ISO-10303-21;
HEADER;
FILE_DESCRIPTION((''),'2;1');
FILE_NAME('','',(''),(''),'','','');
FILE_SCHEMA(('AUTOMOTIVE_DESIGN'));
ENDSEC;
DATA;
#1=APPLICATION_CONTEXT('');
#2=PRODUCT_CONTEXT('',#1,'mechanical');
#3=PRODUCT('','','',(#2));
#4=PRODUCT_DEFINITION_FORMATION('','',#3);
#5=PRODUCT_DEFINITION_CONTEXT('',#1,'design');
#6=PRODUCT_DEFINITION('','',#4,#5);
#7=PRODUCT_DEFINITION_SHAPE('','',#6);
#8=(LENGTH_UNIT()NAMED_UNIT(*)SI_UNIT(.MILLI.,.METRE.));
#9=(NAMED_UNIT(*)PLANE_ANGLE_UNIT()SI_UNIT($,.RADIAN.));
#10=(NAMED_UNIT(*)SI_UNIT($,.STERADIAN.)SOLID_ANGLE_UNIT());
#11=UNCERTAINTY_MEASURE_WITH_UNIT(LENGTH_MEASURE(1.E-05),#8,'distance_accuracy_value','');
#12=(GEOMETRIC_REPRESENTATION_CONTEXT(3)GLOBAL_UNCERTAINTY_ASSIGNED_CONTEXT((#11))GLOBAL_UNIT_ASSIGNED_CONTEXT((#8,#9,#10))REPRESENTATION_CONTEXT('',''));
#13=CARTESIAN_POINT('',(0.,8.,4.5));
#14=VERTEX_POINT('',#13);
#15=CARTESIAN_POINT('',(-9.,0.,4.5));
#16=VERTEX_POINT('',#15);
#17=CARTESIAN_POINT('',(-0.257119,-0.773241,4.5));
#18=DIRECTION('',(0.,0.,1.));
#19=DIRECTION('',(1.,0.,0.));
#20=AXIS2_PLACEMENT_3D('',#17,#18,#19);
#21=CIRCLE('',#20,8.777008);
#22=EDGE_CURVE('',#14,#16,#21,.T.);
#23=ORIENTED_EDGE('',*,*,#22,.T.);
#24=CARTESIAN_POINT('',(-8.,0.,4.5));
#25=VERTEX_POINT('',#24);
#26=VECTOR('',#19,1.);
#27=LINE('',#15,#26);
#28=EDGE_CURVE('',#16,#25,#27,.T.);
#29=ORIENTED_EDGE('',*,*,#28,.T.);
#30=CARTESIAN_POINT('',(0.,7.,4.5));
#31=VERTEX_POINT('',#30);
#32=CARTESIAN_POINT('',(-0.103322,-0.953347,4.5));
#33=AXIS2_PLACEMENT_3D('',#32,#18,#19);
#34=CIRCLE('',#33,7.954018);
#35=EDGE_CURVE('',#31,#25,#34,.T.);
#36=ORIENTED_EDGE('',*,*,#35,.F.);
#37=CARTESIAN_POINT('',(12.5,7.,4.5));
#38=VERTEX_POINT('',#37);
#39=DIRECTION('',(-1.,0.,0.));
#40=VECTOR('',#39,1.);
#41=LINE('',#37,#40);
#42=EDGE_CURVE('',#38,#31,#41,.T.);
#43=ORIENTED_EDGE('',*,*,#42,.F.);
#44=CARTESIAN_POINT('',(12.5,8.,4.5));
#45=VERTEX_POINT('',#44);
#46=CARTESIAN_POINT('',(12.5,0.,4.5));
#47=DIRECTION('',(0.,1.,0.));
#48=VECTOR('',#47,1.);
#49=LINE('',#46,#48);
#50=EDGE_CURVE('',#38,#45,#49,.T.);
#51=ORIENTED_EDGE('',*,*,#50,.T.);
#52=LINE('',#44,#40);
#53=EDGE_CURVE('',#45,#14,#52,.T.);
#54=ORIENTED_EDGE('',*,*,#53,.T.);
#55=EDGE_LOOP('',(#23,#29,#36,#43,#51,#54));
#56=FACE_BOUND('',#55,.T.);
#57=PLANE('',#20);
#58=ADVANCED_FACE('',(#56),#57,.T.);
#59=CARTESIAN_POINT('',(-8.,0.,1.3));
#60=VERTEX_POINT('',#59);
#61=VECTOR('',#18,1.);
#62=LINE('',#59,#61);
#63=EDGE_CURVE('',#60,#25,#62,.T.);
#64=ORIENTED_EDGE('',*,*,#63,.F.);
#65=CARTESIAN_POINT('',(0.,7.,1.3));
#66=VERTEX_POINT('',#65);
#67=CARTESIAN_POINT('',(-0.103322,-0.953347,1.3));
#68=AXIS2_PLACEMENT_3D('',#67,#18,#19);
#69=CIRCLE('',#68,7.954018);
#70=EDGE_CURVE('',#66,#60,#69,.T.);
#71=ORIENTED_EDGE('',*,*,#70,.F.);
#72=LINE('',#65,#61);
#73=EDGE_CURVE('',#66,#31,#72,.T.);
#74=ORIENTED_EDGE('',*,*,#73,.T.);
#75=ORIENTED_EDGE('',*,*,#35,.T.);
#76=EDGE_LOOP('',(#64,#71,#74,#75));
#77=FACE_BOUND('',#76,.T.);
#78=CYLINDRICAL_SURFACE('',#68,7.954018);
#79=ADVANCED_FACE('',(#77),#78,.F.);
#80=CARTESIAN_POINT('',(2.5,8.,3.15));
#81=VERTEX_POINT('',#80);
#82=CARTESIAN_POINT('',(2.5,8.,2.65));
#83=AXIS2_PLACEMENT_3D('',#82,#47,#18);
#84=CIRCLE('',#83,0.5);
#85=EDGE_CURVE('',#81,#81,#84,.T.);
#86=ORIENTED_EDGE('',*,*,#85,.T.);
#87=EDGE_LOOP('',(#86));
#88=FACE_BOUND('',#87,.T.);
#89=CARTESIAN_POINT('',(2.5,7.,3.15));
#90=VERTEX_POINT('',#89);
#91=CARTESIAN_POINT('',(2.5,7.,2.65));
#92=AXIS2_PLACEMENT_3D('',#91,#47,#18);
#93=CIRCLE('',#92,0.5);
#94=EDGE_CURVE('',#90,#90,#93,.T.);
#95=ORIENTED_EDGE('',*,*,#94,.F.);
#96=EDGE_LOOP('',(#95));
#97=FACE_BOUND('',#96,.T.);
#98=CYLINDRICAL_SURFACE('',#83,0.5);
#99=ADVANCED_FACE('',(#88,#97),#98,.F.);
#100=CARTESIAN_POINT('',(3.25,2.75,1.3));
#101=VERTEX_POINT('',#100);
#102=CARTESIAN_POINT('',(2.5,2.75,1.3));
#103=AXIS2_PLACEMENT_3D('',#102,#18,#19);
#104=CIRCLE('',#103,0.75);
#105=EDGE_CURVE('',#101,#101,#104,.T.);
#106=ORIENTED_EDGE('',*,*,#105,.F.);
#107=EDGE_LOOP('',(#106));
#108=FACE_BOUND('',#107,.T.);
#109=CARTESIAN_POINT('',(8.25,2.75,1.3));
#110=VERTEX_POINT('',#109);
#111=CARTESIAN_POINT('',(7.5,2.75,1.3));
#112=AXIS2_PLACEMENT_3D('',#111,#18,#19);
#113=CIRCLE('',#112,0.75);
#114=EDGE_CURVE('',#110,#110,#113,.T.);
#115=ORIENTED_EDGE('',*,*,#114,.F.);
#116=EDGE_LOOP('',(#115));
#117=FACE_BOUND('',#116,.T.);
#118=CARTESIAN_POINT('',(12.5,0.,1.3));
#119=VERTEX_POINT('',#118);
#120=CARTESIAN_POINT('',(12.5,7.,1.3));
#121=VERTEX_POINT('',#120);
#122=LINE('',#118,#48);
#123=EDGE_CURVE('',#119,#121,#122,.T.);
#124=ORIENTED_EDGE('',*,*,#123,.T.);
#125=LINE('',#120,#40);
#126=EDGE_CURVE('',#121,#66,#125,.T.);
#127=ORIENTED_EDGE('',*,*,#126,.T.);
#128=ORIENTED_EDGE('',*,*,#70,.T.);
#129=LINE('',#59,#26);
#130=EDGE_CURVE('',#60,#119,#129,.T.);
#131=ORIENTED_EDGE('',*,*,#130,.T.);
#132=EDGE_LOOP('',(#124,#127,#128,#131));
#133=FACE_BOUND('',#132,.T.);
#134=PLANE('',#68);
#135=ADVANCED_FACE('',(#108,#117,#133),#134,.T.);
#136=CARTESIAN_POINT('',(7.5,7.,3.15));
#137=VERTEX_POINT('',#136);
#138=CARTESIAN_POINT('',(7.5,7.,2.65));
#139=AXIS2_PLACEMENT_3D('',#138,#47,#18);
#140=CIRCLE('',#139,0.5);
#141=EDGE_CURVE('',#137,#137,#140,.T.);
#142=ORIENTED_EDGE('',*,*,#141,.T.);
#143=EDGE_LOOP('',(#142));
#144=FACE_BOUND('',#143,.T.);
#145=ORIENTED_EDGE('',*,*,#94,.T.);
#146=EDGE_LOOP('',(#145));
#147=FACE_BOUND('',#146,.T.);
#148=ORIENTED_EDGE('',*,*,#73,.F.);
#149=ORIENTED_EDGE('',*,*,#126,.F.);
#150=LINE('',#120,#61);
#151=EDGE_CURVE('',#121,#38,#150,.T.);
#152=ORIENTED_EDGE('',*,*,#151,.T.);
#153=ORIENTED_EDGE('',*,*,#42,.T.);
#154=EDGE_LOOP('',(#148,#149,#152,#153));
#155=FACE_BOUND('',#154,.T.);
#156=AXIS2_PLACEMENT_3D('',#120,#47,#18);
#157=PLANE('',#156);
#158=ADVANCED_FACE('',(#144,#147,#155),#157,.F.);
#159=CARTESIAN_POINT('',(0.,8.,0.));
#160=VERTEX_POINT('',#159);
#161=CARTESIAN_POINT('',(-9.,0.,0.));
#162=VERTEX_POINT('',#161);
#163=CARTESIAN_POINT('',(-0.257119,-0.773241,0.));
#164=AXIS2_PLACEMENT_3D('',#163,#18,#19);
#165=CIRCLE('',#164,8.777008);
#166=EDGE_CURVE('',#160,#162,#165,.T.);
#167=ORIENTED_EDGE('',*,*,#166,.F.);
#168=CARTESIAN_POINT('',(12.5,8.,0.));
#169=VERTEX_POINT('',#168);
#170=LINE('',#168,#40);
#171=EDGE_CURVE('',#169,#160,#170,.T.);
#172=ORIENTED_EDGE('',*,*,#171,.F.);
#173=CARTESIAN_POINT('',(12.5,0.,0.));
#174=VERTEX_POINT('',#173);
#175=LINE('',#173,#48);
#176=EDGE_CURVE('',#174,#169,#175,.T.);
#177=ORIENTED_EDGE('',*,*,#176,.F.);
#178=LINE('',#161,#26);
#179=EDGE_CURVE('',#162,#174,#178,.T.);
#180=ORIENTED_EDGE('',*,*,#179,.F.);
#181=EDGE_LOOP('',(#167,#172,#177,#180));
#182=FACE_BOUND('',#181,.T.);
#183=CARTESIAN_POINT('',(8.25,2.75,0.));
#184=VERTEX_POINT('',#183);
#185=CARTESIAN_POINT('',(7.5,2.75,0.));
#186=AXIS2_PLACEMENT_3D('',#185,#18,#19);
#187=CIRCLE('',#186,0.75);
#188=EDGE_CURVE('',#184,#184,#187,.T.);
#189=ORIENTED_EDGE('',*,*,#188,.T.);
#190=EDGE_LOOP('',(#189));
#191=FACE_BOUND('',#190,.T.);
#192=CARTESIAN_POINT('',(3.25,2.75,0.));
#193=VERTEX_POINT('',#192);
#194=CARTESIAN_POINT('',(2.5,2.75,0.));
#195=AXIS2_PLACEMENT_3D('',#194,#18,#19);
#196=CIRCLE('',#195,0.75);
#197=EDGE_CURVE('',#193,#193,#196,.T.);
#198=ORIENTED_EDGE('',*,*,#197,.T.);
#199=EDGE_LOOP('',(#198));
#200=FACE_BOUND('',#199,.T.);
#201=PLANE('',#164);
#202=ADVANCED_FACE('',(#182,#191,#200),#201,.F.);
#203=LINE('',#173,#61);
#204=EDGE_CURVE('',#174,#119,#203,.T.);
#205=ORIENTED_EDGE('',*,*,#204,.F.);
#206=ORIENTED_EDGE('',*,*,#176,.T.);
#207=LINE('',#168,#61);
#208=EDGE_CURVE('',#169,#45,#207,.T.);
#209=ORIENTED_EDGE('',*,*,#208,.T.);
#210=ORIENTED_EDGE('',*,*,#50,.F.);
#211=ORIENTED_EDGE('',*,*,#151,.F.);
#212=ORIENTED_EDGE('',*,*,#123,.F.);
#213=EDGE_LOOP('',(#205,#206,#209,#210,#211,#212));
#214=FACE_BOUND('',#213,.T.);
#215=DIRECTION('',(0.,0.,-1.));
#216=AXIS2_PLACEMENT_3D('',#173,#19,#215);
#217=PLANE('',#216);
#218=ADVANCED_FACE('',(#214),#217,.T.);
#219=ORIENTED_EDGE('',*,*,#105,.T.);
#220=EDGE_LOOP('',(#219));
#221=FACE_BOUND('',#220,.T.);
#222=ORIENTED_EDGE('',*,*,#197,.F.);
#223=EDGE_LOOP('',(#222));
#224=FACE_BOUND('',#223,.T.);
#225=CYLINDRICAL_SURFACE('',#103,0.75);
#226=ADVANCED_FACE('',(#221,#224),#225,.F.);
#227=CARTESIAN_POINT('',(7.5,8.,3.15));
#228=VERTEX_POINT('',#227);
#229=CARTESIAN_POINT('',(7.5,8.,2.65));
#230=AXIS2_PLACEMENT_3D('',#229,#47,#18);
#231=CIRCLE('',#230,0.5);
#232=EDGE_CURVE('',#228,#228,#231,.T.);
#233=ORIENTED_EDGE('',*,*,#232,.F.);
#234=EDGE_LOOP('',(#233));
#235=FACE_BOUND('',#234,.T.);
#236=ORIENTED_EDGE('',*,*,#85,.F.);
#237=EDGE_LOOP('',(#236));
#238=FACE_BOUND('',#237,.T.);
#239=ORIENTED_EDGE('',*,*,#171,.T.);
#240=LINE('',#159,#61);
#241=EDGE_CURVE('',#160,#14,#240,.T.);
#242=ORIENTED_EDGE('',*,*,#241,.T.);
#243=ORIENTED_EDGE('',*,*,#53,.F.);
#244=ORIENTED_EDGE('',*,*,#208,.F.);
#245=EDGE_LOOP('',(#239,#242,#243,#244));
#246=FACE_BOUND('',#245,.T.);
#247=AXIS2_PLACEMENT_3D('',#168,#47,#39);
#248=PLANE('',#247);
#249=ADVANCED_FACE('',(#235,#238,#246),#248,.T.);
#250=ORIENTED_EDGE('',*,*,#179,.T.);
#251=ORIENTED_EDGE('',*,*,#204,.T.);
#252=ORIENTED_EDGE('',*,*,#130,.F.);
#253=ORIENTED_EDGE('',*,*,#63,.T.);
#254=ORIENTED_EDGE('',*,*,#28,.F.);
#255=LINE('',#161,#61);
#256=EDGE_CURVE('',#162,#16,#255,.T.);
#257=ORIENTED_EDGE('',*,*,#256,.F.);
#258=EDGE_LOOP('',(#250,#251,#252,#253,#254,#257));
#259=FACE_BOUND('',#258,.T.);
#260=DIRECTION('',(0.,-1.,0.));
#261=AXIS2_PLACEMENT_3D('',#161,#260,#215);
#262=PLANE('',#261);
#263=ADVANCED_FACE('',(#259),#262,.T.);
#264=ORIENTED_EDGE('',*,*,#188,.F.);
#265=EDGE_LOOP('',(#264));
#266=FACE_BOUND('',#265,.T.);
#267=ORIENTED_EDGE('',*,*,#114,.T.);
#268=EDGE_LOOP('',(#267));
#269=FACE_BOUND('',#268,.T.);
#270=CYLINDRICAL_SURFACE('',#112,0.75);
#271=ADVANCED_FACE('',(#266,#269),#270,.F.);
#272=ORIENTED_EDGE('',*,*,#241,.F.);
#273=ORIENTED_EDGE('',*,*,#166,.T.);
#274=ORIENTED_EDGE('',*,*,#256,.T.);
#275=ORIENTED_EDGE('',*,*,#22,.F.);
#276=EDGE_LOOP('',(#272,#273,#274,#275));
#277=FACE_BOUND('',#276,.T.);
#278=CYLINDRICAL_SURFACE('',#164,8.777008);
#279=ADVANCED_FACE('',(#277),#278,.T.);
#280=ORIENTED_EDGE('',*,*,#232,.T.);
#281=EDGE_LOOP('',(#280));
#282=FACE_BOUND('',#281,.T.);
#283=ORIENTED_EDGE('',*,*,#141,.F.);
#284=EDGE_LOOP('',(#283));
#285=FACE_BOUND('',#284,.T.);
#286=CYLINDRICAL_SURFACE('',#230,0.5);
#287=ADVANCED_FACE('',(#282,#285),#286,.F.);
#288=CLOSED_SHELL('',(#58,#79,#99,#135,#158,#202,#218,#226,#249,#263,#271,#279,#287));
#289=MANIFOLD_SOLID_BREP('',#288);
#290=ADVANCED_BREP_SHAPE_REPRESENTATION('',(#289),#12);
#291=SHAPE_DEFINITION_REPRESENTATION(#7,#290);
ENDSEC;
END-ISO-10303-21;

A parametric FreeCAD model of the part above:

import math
import FreeCAD as App
import Part
import Sketcher

V = App.Vector

doc = App.newDocument("Part")
params = doc.addObject("Spreadsheet::Sheet", "Params")
for row, (alias, value) in enumerate([
    ("sketch1_height", "8 mm"),
    ("sketch1_width", "21.5 mm"),
    ("sketch1_width2", "12.5 mm"),
    ("pad1_length", "4.5 mm"),
    ("sketch2_height", "7 mm"),
    ("sketch2_width", "12.5 mm"),
    ("sketch2_width2", "20.5 mm"),
    ("pocket1_length", "3.2 mm"),
    ("sketch3_diameter", "1 mm"),
    ("hole_diameter", "1 mm"),
    ("hole_depth", "8 mm"),
    ("sketch4_diameter", "1.5 mm"),
    ("hole2_diameter", "1.5 mm"),
], start=1):
    params.set(f"A{row}", alias)
    params.set(f"B{row}", "=" + value)
    params.setAlias(f"B{row}", alias)

body = doc.addObject("PartDesign::Body", "Body")

# Sketch on XY plane
sketch1 = body.newObject("Sketcher::SketchObject", "Sketch")
sketch1.AttachmentSupport = (doc.getObject("XY_Plane"), [""])
sketch1.MapMode = "FlatFace"
sketch1.AttachmentOffset = App.Placement(V(0, 0, 4.5), App.Rotation())
sketch1.addGeometry(Part.LineSegment(V(-9, 0, 0), V(12, 0, 0)), False)
sketch1.addGeometry(Part.LineSegment(V(12, 0, 0), V(12, 8, 0)), False)
sketch1.addGeometry(Part.LineSegment(V(12, 8, 0), V(0, 8, 0)), False)
sketch1.addGeometry(Part.ArcOfCircle(Part.Circle(V(0, -1, 0), V(0, 0, 1), 9), math.radians(88), math.radians(175)), False)
sketch1.addConstraint(Sketcher.Constraint("Coincident", 0, 2, 1, 1))
sketch1.addConstraint(Sketcher.Constraint("Coincident", 1, 2, 2, 1))
sketch1.addConstraint(Sketcher.Constraint("Coincident", 2, 2, 3, 1))
sketch1.addConstraint(Sketcher.Constraint("Coincident", 3, 2, 0, 1))
sketch1.addConstraint(Sketcher.Constraint("Horizontal", 0))
sketch1.addConstraint(Sketcher.Constraint("Vertical", 1))
sketch1.addConstraint(Sketcher.Constraint("Horizontal", 2))
sketch1.addConstraint(Sketcher.Constraint("PointOnObject", 0, 2, -1))
sketch1.addConstraint(Sketcher.Constraint("PointOnObject", 2, 2, -2))
sketch1.addConstraint(Sketcher.Constraint("DistanceY", 1, 1, 1, 2, 8.0))
sketch1.addConstraint(Sketcher.Constraint("DistanceX", 0, 1, 0, 2, 21.5))
sketch1.addConstraint(Sketcher.Constraint("DistanceX", 2, 2, 2, 1, 12.5))
sketch1.addConstraint(Sketcher.Constraint("Radius", 3, 8.777008))
sketch1.setExpression("Constraints[9]", "Params.sketch1_height")
sketch1.setExpression("Constraints[10]", "Params.sketch1_width")
sketch1.setExpression("Constraints[11]", "Params.sketch1_width2")
pad1 = body.newObject("PartDesign::Pad", "Pad")
pad1.Profile = sketch1
pad1.setExpression("Length", "Params.pad1_length")
pad1.Reversed = True

# Sketch on XY plane
sketch2 = body.newObject("Sketcher::SketchObject", "Sketch001")
sketch2.AttachmentSupport = (doc.getObject("XY_Plane"), [""])
sketch2.MapMode = "FlatFace"
sketch2.AttachmentOffset = App.Placement(V(0, 0, 4.5), App.Rotation())
sketch2.addGeometry(Part.LineSegment(V(12, 7, 0), V(0, 7, 0)), False)
sketch2.addGeometry(Part.ArcOfCircle(Part.Circle(V(0, -1, 0), V(0, 0, 1), 8), math.radians(89), math.radians(173)), False)
sketch2.addGeometry(Part.LineSegment(V(-8, 0, 0), V(12, 0, 0)), False)
sketch2.addGeometry(Part.LineSegment(V(12, 0, 0), V(12, 7, 0)), False)
sketch2.addConstraint(Sketcher.Constraint("Coincident", 0, 2, 1, 1))
sketch2.addConstraint(Sketcher.Constraint("Coincident", 1, 2, 2, 1))
sketch2.addConstraint(Sketcher.Constraint("Coincident", 2, 2, 3, 1))
sketch2.addConstraint(Sketcher.Constraint("Coincident", 3, 2, 0, 1))
sketch2.addConstraint(Sketcher.Constraint("Horizontal", 0))
sketch2.addConstraint(Sketcher.Constraint("Horizontal", 2))
sketch2.addConstraint(Sketcher.Constraint("Vertical", 3))
sketch2.addConstraint(Sketcher.Constraint("PointOnObject", 0, 2, -2))
sketch2.addConstraint(Sketcher.Constraint("PointOnObject", 1, 2, -1))
sketch2.addConstraint(Sketcher.Constraint("DistanceY", 3, 1, 3, 2, 7.0))
sketch2.addConstraint(Sketcher.Constraint("DistanceX", 0, 2, 0, 1, 12.5))
sketch2.addConstraint(Sketcher.Constraint("DistanceX", 2, 1, 2, 2, 20.5))
sketch2.addConstraint(Sketcher.Constraint("Radius", 1, 7.954018))
sketch2.setExpression("Constraints[9]", "Params.sketch2_height")
sketch2.setExpression("Constraints[10]", "Params.sketch2_width")
sketch2.setExpression("Constraints[11]", "Params.sketch2_width2")
pocket1 = body.newObject("PartDesign::Pocket", "Pocket")
pocket1.Profile = sketch2
pocket1.setExpression("Length", "Params.pocket1_length")

# Sketch on XZ plane
sketch3 = body.newObject("Sketcher::SketchObject", "Sketch002")
sketch3.AttachmentSupport = (doc.getObject("XZ_Plane"), [""])
sketch3.MapMode = "FlatFace"
sketch3.AttachmentOffset = App.Placement(V(0, 0, -8), App.Rotation())
sketch3.addGeometry(Part.Circle(V(2.5, 2.6, 0), V(0, 0, 1), 0.5), False)
sketch3.addGeometry(Part.Circle(V(7.5, 2.6, 0), V(0, 0, 1), 0.5), False)
sketch3.addConstraint(Sketcher.Constraint("Equal", 0, 1))
sketch3.addConstraint(Sketcher.Constraint("Horizontal", 0, 3, 1, 3))
sketch3.addConstraint(Sketcher.Constraint("Diameter", 0, 1.0))
sketch3.addConstraint(Sketcher.Constraint("DistanceX", 0, 3, 1, 3, 5.0))
sketch3.addConstraint(Sketcher.Constraint("DistanceX", -1, 1, 0, 3, 2.5))
sketch3.addConstraint(Sketcher.Constraint("DistanceY", -1, 1, 0, 3, 2.65))
sketch3.setExpression("Constraints[2]", "Params.sketch3_diameter")
doc.recompute()
hole = body.newObject("PartDesign::Hole", "Hole")
hole.Profile = sketch3
hole.ThreadType = "None"
hole.setExpression("Diameter", "Params.hole_diameter")
hole.DepthType = "Dimension"
hole.setExpression("Depth", "Params.hole_depth")
hole.DrillPoint = "Flat"
hole.Reversed = True

# Sketch on XY plane
sketch4 = body.newObject("Sketcher::SketchObject", "Sketch003")
sketch4.AttachmentSupport = (doc.getObject("XY_Plane"), [""])
sketch4.MapMode = "FlatFace"
sketch4.AttachmentOffset = App.Placement(V(0, 0, 1.3), App.Rotation())
sketch4.addGeometry(Part.Circle(V(7.5, 2.8, 0), V(0, 0, 1), 0.8), False)
sketch4.addGeometry(Part.Circle(V(2.5, 2.8, 0), V(0, 0, 1), 0.8), False)
sketch4.addConstraint(Sketcher.Constraint("Equal", 0, 1))
sketch4.addConstraint(Sketcher.Constraint("Horizontal", 0, 3, 1, 3))
sketch4.addConstraint(Sketcher.Constraint("Diameter", 0, 1.5))
sketch4.addConstraint(Sketcher.Constraint("DistanceX", 1, 3, 0, 3, 5.0))
sketch4.addConstraint(Sketcher.Constraint("DistanceX", -1, 1, 0, 3, 7.5))
sketch4.addConstraint(Sketcher.Constraint("DistanceY", -1, 1, 0, 3, 2.75))
sketch4.setExpression("Constraints[2]", "Params.sketch4_diameter")
doc.recompute()
hole2 = body.newObject("PartDesign::Hole", "Hole001")
hole2.Profile = sketch4
hole2.ThreadType = "None"
hole2.setExpression("Diameter", "Params.hole2_diameter")
hole2.DepthType = "ThroughAll"

doc.recompute()
